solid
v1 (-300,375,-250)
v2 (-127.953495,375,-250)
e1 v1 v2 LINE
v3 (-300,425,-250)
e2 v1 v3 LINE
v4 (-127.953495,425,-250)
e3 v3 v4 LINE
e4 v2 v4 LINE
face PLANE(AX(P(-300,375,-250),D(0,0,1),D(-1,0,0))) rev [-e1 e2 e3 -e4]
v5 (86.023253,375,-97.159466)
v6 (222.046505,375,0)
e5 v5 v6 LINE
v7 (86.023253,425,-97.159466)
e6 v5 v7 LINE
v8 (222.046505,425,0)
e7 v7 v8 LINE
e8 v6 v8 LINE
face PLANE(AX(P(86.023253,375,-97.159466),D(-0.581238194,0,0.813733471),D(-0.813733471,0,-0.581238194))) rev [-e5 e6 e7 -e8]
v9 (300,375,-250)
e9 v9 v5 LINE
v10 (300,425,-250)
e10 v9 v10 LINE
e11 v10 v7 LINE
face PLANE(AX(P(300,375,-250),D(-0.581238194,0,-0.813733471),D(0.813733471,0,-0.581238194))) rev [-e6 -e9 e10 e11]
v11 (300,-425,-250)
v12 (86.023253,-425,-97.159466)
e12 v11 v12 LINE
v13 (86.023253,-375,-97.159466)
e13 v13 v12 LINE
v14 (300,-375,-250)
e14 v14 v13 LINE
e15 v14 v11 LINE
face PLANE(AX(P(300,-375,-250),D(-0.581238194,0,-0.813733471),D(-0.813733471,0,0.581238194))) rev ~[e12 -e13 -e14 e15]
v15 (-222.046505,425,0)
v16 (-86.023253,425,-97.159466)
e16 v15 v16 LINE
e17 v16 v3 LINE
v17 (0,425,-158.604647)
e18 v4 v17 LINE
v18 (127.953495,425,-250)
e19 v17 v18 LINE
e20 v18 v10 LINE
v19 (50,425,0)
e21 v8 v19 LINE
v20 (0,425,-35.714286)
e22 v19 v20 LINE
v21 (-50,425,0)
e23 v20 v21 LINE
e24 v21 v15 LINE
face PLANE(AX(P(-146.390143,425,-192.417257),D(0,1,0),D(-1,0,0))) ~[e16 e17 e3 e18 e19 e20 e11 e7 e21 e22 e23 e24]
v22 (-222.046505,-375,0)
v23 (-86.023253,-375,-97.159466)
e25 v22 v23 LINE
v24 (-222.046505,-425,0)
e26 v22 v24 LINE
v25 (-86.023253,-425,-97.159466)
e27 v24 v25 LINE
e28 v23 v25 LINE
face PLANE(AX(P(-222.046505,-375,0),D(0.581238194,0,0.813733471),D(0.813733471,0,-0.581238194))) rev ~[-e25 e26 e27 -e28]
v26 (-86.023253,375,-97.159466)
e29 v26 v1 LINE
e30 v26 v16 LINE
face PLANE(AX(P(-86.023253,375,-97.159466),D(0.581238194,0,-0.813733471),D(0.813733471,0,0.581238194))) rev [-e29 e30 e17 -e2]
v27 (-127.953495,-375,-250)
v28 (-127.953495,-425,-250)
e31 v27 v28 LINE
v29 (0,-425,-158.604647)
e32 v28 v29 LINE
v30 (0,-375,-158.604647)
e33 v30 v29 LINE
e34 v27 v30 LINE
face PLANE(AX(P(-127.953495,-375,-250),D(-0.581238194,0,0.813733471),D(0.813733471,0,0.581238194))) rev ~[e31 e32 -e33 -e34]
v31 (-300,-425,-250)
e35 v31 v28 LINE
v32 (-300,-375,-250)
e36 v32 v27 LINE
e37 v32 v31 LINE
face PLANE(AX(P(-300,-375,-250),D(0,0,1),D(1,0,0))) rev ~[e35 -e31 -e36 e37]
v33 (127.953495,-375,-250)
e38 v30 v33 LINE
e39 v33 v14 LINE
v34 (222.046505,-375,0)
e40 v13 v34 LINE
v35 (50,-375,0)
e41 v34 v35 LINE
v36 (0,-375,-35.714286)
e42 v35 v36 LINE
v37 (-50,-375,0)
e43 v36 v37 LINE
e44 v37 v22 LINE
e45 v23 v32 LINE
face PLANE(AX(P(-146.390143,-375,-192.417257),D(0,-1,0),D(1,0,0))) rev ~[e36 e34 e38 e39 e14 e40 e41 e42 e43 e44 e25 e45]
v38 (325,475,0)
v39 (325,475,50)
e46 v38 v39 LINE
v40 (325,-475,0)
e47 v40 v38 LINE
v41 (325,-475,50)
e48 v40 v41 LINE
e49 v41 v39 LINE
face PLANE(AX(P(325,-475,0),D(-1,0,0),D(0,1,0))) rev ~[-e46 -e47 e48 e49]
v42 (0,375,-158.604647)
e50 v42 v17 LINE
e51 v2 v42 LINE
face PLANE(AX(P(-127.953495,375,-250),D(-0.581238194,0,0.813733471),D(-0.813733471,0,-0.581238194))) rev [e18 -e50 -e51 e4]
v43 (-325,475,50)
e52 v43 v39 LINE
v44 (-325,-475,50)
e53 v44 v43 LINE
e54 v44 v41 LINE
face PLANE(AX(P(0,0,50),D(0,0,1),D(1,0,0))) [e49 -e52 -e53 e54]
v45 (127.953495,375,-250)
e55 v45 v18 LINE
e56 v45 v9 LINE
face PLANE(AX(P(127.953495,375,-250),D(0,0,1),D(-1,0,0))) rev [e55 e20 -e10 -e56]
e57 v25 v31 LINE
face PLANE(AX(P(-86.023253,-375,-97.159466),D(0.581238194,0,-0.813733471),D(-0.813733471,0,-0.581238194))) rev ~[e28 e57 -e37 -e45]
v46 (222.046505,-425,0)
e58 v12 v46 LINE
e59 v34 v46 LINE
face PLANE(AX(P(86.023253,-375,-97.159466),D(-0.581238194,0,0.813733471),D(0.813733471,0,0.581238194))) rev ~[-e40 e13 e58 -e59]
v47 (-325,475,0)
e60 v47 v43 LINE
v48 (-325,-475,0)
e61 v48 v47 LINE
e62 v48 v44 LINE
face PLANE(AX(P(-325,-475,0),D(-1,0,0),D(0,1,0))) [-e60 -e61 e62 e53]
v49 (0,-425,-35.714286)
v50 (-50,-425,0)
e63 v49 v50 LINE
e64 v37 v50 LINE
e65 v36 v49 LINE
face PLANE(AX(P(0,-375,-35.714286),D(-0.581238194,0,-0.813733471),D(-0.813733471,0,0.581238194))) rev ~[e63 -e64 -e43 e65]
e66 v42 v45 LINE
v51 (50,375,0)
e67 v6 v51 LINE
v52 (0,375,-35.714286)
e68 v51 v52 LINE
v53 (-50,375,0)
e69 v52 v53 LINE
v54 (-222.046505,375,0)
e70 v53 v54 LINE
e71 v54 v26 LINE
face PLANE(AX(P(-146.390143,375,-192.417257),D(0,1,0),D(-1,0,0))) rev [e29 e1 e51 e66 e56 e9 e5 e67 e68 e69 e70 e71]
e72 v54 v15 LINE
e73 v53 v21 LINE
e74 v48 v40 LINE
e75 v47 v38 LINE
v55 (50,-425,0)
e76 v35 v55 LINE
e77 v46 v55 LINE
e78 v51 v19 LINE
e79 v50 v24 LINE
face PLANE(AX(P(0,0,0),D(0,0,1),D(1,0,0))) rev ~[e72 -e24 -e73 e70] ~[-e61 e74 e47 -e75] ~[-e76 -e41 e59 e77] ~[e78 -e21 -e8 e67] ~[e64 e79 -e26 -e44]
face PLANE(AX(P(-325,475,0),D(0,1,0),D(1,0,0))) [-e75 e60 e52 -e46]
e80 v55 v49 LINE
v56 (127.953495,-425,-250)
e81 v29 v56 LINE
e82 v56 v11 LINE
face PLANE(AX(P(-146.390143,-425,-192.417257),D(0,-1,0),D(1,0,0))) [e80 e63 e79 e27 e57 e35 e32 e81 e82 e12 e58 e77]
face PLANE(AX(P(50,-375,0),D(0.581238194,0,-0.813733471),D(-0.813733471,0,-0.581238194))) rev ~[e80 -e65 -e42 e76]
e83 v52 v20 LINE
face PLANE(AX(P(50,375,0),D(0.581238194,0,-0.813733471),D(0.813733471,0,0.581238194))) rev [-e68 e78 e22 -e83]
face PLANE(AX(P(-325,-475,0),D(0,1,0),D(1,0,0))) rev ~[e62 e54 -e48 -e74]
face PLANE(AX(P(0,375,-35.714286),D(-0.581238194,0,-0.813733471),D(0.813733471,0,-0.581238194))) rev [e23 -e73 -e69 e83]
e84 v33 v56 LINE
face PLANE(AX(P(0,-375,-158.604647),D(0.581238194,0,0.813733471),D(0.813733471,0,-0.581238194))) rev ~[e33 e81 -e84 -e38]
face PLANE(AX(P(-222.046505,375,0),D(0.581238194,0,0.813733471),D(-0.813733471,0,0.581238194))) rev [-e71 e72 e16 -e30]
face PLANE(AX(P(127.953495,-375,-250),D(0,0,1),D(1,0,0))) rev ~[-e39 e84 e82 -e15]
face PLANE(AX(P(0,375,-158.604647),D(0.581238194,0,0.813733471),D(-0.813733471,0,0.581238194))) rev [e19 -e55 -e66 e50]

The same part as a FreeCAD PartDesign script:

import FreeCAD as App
import Part
import Sketcher
Q = App.Units.Quantity

doc = App.newDocument("Part")
body = doc.addObject("PartDesign::Body", "Body")

sketch1 = doc.addObject("Sketcher::SketchObject", "Sketch")
body.addObject(sketch1)
sketch1.AttachmentSupport = (doc.XY_Plane, [""])
sketch1.MapMode = "FlatFace"
sketch1.addGeometry([
    Part.LineSegment(App.Vector(-325, 475, 0), App.Vector(-325, -475, 0)),
    Part.LineSegment(App.Vector(-325, -475, 0), App.Vector(325, -475, 0)),
    Part.LineSegment(App.Vector(325, -475, 0), App.Vector(325, 475, 0)),
    Part.LineSegment(App.Vector(325, 475, 0), App.Vector(-325, 475, 0)),
], False)
sketch1.addConstraint([
    Sketcher.Constraint("Coincident", 0, 2, 1, 1),
    Sketcher.Constraint("Coincident", 1, 2, 2, 1),
    Sketcher.Constraint("Coincident", 2, 2, 3, 1),
    Sketcher.Constraint("Coincident", 3, 2, 0, 1),
    Sketcher.Constraint("Vertical", 0),
    Sketcher.Constraint("Horizontal", 1),
    Sketcher.Constraint("Vertical", 2),
    Sketcher.Constraint("Horizontal", 3),
    Sketcher.Constraint("Symmetric", 0, 2, 2, 2, -1, 1),
    Sketcher.Constraint("DistanceX", 1, 1, 1, 2, Q("650 mm")),
    Sketcher.Constraint("DistanceY", 0, 2, 0, 1, Q("950 mm")),
])
pad1 = doc.addObject("PartDesign::Pad", "Pad")
body.addObject(pad1)
pad1.Profile = sketch1
pad1.Length = 50

sketch2 = doc.addObject("Sketcher::SketchObject", "Sketch001")
body.addObject(sketch2)
sketch2.AttachmentSupport = (doc.XZ_Plane, [""])
sketch2.MapMode = "FlatFace"
sketch2.AttachmentOffset = App.Placement(App.Vector(0, 0, 375), App.Rotation())
sketch2.addGeometry([
    Part.LineSegment(App.Vector(-127.953495, -250, 0), App.Vector(0, -158.604647, 0)),
    Part.LineSegment(App.Vector(0, -158.604647, 0), App.Vector(127.953495, -250, 0)),
    Part.LineSegment(App.Vector(127.953495, -250, 0), App.Vector(300, -250, 0)),
    Part.LineSegment(App.Vector(300, -250, 0), App.Vector(86.023253, -97.159466, 0)),
    Part.LineSegment(App.Vector(86.023253, -97.159466, 0), App.Vector(222.046505, 0, 0)),
    Part.LineSegment(App.Vector(222.046505, 0, 0), App.Vector(50, 0, 0)),
    Part.LineSegment(App.Vector(50, 0, 0), App.Vector(0, -35.714286, 0)),
    Part.LineSegment(App.Vector(0, -35.714286, 0), App.Vector(-50, 0, 0)),
    Part.LineSegment(App.Vector(-50, 0, 0), App.Vector(-222.046505, 0, 0)),
    Part.LineSegment(App.Vector(-222.046505, 0, 0), App.Vector(-86.023253, -97.159466, 0)),
    Part.LineSegment(App.Vector(-86.023253, -97.159466, 0), App.Vector(-300, -250, 0)),
    Part.LineSegment(App.Vector(-300, -250, 0), App.Vector(-127.953495, -250, 0)),
], False)
sketch2.addConstraint([
    Sketcher.Constraint("Coincident", 0, 2, 1, 1),
    Sketcher.Constraint("Coincident", 1, 2, 2, 1),
    Sketcher.Constraint("Coincident", 2, 2, 3, 1),
    Sketcher.Constraint("Coincident", 3, 2, 4, 1),
    Sketcher.Constraint("Coincident", 4, 2, 5, 1),
    Sketcher.Constraint("Coincident", 5, 2, 6, 1),
    Sketcher.Constraint("Coincident", 6, 2, 7, 1),
    Sketcher.Constraint("Coincident", 7, 2, 8, 1),
    Sketcher.Constraint("Coincident", 8, 2, 9, 1),
    Sketcher.Constraint("Coincident", 9, 2, 10, 1),
    Sketcher.Constraint("Coincident", 10, 2, 11, 1),
    Sketcher.Constraint("Coincident", 11, 2, 0, 1),
    Sketcher.Constraint("Horizontal", 2),
    Sketcher.Constraint("Horizontal", 5),
    Sketcher.Constraint("Horizontal", 8),
    Sketcher.Constraint("Horizontal", 11),
    Sketcher.Constraint("Symmetric", 5, 2, 7, 2, -1, 1),
    Sketcher.Constraint("Symmetric", 4, 2, 8, 2, -2),
    Sketcher.Constraint("Symmetric", 3, 2, 9, 2, -2),
    Sketcher.Constraint("Symmetric", 2, 2, 10, 2, -2),
    Sketcher.Constraint("PointOnObject", 0, 2, -2),
    Sketcher.Constraint("PointOnObject", 6, 2, -2),
    Sketcher.Constraint("Parallel", 1, 3),
    Sketcher.Constraint("Parallel", 0, 4),
    Sketcher.Constraint("Parallel", 4, 6),
    Sketcher.Constraint("Parallel", 3, 7),
    Sketcher.Constraint("Equal", 2, 5),
    Sketcher.Constraint("DistanceY", 1, 2, -1, 1, Q("250 mm")),
    Sketcher.Constraint("DistanceX", -1, 1, 2, 2, Q("300 mm")),
    Sketcher.Constraint("DistanceX", -1, 1, 5, 2, Q("50 mm")),
    Sketcher.Constraint("Distance", 0, Q("157.242511 mm")),
    Sketcher.Constraint("Distance", 6, Q("61.44518 mm")),
])
pad2 = doc.addObject("PartDesign::Pad", "Pad001")
body.addObject(pad2)
pad2.Profile = sketch2
pad2.Length = 50
body2 = doc.addObject("PartDesign::Body", "Body001")
doc.recompute()

body2.BaseFeature = body
doc.recompute()

mirroring = doc.addObject("Part::Mirroring", "Mirroring")
mirroring.Source = body
mirroring.Base = App.Vector(0, 0, 0)
mirroring.Normal = App.Vector(0, -1, 0)
body3 = doc.addObject("PartDesign::Body", "Body002")
body3.BaseFeature = mirroring
boolean = doc.addObject("PartDesign::Boolean", "Boolean")
body2.addObject(boolean)
boolean.Type = "Fuse"
boolean.addObjects([body3])
doc.recompute()
mirroring.Visibility = False

doc.recompute()
